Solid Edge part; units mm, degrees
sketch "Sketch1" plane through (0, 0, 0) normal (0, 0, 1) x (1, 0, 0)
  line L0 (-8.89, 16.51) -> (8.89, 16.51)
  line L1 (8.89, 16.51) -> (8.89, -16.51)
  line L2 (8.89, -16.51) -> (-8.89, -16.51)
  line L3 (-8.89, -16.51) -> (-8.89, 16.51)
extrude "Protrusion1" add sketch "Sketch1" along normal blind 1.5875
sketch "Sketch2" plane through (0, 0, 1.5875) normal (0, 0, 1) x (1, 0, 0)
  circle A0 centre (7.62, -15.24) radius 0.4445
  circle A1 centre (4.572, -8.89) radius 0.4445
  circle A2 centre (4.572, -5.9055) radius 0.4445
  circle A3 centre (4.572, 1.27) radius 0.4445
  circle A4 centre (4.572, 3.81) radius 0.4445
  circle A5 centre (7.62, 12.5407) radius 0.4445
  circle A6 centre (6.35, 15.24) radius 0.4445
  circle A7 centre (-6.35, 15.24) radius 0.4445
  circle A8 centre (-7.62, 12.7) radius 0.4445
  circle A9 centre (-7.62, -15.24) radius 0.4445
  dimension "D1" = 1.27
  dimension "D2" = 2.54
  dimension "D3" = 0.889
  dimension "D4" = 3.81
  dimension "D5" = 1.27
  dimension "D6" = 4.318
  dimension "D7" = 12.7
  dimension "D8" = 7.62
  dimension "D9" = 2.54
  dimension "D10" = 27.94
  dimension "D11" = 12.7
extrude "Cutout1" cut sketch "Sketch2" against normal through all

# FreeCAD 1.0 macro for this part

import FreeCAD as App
import Part
import Sketcher

V = App.Vector
Q = App.Units.Quantity


def add_polygon(sketch, points):
    """Adds a closed chain of lines whose ends are joined by coincident constraints."""
    first, n = sketch.GeometryCount, len(points)
    for a, b in zip(points, points[1:] + points[:1]):
        sketch.addGeometry(Part.LineSegment(App.Vector(*a, 0), App.Vector(*b, 0)), False)
    for i in range(n):
        sketch.addConstraint(Sketcher.Constraint("Coincident", first + i, 2, first + (i + 1) % n, 1))

doc = App.newDocument("Part")
body = doc.addObject("PartDesign::Body", "Body")

sketch1 = body.newObject("Sketcher::SketchObject", "Sketch")
sketch1.AttachmentSupport = (doc.getObject("XY_Plane"), [""])
sketch1.MapMode = "FlatFace"
add_polygon(sketch1, [(9, 17), (-9, 17), (-9, -17), (9, -17)])
sketch1.addConstraint(Sketcher.Constraint("Horizontal", 0))
sketch1.addConstraint(Sketcher.Constraint("Vertical", 1))
sketch1.addConstraint(Sketcher.Constraint("Horizontal", 2))
sketch1.addConstraint(Sketcher.Constraint("Vertical", 3))
sketch1.addConstraint(Sketcher.Constraint("Symmetric", 0, 2, 2, 2, -1, 1))
sketch1.addConstraint(Sketcher.Constraint("DistanceX", 0, 2, 0, 1, Q("0.7 in")))
sketch1.addConstraint(Sketcher.Constraint("DistanceY", 1, 2, 1, 1, Q("1.3 in")))
pad1 = body.newObject("PartDesign::Pad", "Pad")
pad1.Profile = sketch1
pad1.Length = Q("0.0625 in")

sketch2 = body.newObject("Sketcher::SketchObject", "Sketch001")
sketch2.AttachmentSupport = (doc.getObject("XY_Plane"), [""])
sketch2.MapMode = "FlatFace"
sketch2.AttachmentOffset = App.Placement(V(0, 0, 0.0625 * 25.4), App.Rotation())
sketch2.addGeometry(Part.Circle(V(7.62, -15.24, 0), V(0, 0, 1), 0.44), False)
sketch2.addGeometry(Part.Circle(V(4.57, -8.89, 0), V(0, 0, 1), 0.44), False)
sketch2.addGeometry(Part.Circle(V(4.57, -5.91, 0), V(0, 0, 1), 0.44), False)
sketch2.addGeometry(Part.Circle(V(4.57, 1.27, 0), V(0, 0, 1), 0.44), False)
sketch2.addGeometry(Part.Circle(V(4.57, 3.81, 0), V(0, 0, 1), 0.44), False)
sketch2.addGeometry(Part.Circle(V(7.62, 12.54, 0), V(0, 0, 1), 0.44), False)
sketch2.addGeometry(Part.Circle(V(6.35, 15.24, 0), V(0, 0, 1), 0.44), False)
sketch2.addGeometry(Part.Circle(V(-6.35, 15.24, 0), V(0, 0, 1), 0.44), False)
sketch2.addGeometry(Part.Circle(V(-7.62, 12.7, 0), V(0, 0, 1), 0.44), False)
sketch2.addGeometry(Part.Circle(V(-7.62, -15.24, 0), V(0, 0, 1), 0.44), False)
sketch2.addConstraint(Sketcher.Constraint("Equal", 0, 1))
sketch2.addConstraint(Sketcher.Constraint("Equal", 1, 2))
sketch2.addConstraint(Sketcher.Constraint("Equal", 2, 3))
sketch2.addConstraint(Sketcher.Constraint("Equal", 3, 4))
sketch2.addConstraint(Sketcher.Constraint("Equal", 4, 5))
sketch2.addConstraint(Sketcher.Constraint("Equal", 5, 6))
sketch2.addConstraint(Sketcher.Constraint("Equal", 6, 7))
sketch2.addConstraint(Sketcher.Constraint("Equal", 7, 8))
sketch2.addConstraint(Sketcher.Constraint("Equal", 8, 9))
sketch2.addConstraint(Sketcher.Constraint("Symmetric", 6, 3, 7, 3, -2))
sketch2.addConstraint(Sketcher.Constraint("Symmetric", 0, 3, 9, 3, -2))
sketch2.addConstraint(Sketcher.Constraint("Vertical", 1, 3, 2, 3))
sketch2.addConstraint(Sketcher.Constraint("Vertical", 2, 3, 3, 3))
sketch2.addConstraint(Sketcher.Constraint("Vertical", 3, 3, 4, 3))
sketch2.addConstraint(Sketcher.Constraint("Vertical", 0, 3, 5, 3))
sketch2.addConstraint(Sketcher.Constraint("Vertical", 8, 3, 9, 3))
sketch2.addConstraint(Sketcher.Constraint("Diameter", 0, Q("0.035 in")))
sketch2.addConstraint(Sketcher.Constraint("DistanceX", -1, 1, 0, 3, Q("0.3 in")))
sketch2.addConstraint(Sketcher.Constraint("DistanceY", 0, 3, -1, 1, Q("0.6 in")))
sketch2.addConstraint(Sketcher.Constraint("DistanceY", -1, 1, 6, 3, Q("0.6 in")))
sketch2.addConstraint(Sketcher.Constraint("DistanceY", -1, 1, 8, 3, Q("0.5 in")))
sketch2.addConstraint(Sketcher.Constraint("DistanceY", 1, 3, 3, 3, Q("0.4 in")))
sketch2.addConstraint(Sketcher.Constraint("DistanceY", 3, 3, 4, 3, Q("0.1 in")))
sketch2.addConstraint(Sketcher.Constraint("DistanceX", 7, 3, 6, 3, Q("0.5 in")))
sketch2.addConstraint(Sketcher.Constraint("DistanceX", -1, 1, 1, 3, Q("0.18 in")))
sketch2.addConstraint(Sketcher.Constraint("DistanceY", 1, 3, -1, 1, Q("0.35 in")))
sketch2.addConstraint(Sketcher.Constraint("DistanceY", 2, 3, -1, 1, Q("0.2325 in")))
sketch2.addConstraint(Sketcher.Constraint("DistanceY", -1, 1, 5, 3, 12.5407))
pocket1 = body.newObject("PartDesign::Pocket", "Pocket")
pocket1.Profile = sketch2
pocket1.Type = "ThroughAll"

doc.recompute()
